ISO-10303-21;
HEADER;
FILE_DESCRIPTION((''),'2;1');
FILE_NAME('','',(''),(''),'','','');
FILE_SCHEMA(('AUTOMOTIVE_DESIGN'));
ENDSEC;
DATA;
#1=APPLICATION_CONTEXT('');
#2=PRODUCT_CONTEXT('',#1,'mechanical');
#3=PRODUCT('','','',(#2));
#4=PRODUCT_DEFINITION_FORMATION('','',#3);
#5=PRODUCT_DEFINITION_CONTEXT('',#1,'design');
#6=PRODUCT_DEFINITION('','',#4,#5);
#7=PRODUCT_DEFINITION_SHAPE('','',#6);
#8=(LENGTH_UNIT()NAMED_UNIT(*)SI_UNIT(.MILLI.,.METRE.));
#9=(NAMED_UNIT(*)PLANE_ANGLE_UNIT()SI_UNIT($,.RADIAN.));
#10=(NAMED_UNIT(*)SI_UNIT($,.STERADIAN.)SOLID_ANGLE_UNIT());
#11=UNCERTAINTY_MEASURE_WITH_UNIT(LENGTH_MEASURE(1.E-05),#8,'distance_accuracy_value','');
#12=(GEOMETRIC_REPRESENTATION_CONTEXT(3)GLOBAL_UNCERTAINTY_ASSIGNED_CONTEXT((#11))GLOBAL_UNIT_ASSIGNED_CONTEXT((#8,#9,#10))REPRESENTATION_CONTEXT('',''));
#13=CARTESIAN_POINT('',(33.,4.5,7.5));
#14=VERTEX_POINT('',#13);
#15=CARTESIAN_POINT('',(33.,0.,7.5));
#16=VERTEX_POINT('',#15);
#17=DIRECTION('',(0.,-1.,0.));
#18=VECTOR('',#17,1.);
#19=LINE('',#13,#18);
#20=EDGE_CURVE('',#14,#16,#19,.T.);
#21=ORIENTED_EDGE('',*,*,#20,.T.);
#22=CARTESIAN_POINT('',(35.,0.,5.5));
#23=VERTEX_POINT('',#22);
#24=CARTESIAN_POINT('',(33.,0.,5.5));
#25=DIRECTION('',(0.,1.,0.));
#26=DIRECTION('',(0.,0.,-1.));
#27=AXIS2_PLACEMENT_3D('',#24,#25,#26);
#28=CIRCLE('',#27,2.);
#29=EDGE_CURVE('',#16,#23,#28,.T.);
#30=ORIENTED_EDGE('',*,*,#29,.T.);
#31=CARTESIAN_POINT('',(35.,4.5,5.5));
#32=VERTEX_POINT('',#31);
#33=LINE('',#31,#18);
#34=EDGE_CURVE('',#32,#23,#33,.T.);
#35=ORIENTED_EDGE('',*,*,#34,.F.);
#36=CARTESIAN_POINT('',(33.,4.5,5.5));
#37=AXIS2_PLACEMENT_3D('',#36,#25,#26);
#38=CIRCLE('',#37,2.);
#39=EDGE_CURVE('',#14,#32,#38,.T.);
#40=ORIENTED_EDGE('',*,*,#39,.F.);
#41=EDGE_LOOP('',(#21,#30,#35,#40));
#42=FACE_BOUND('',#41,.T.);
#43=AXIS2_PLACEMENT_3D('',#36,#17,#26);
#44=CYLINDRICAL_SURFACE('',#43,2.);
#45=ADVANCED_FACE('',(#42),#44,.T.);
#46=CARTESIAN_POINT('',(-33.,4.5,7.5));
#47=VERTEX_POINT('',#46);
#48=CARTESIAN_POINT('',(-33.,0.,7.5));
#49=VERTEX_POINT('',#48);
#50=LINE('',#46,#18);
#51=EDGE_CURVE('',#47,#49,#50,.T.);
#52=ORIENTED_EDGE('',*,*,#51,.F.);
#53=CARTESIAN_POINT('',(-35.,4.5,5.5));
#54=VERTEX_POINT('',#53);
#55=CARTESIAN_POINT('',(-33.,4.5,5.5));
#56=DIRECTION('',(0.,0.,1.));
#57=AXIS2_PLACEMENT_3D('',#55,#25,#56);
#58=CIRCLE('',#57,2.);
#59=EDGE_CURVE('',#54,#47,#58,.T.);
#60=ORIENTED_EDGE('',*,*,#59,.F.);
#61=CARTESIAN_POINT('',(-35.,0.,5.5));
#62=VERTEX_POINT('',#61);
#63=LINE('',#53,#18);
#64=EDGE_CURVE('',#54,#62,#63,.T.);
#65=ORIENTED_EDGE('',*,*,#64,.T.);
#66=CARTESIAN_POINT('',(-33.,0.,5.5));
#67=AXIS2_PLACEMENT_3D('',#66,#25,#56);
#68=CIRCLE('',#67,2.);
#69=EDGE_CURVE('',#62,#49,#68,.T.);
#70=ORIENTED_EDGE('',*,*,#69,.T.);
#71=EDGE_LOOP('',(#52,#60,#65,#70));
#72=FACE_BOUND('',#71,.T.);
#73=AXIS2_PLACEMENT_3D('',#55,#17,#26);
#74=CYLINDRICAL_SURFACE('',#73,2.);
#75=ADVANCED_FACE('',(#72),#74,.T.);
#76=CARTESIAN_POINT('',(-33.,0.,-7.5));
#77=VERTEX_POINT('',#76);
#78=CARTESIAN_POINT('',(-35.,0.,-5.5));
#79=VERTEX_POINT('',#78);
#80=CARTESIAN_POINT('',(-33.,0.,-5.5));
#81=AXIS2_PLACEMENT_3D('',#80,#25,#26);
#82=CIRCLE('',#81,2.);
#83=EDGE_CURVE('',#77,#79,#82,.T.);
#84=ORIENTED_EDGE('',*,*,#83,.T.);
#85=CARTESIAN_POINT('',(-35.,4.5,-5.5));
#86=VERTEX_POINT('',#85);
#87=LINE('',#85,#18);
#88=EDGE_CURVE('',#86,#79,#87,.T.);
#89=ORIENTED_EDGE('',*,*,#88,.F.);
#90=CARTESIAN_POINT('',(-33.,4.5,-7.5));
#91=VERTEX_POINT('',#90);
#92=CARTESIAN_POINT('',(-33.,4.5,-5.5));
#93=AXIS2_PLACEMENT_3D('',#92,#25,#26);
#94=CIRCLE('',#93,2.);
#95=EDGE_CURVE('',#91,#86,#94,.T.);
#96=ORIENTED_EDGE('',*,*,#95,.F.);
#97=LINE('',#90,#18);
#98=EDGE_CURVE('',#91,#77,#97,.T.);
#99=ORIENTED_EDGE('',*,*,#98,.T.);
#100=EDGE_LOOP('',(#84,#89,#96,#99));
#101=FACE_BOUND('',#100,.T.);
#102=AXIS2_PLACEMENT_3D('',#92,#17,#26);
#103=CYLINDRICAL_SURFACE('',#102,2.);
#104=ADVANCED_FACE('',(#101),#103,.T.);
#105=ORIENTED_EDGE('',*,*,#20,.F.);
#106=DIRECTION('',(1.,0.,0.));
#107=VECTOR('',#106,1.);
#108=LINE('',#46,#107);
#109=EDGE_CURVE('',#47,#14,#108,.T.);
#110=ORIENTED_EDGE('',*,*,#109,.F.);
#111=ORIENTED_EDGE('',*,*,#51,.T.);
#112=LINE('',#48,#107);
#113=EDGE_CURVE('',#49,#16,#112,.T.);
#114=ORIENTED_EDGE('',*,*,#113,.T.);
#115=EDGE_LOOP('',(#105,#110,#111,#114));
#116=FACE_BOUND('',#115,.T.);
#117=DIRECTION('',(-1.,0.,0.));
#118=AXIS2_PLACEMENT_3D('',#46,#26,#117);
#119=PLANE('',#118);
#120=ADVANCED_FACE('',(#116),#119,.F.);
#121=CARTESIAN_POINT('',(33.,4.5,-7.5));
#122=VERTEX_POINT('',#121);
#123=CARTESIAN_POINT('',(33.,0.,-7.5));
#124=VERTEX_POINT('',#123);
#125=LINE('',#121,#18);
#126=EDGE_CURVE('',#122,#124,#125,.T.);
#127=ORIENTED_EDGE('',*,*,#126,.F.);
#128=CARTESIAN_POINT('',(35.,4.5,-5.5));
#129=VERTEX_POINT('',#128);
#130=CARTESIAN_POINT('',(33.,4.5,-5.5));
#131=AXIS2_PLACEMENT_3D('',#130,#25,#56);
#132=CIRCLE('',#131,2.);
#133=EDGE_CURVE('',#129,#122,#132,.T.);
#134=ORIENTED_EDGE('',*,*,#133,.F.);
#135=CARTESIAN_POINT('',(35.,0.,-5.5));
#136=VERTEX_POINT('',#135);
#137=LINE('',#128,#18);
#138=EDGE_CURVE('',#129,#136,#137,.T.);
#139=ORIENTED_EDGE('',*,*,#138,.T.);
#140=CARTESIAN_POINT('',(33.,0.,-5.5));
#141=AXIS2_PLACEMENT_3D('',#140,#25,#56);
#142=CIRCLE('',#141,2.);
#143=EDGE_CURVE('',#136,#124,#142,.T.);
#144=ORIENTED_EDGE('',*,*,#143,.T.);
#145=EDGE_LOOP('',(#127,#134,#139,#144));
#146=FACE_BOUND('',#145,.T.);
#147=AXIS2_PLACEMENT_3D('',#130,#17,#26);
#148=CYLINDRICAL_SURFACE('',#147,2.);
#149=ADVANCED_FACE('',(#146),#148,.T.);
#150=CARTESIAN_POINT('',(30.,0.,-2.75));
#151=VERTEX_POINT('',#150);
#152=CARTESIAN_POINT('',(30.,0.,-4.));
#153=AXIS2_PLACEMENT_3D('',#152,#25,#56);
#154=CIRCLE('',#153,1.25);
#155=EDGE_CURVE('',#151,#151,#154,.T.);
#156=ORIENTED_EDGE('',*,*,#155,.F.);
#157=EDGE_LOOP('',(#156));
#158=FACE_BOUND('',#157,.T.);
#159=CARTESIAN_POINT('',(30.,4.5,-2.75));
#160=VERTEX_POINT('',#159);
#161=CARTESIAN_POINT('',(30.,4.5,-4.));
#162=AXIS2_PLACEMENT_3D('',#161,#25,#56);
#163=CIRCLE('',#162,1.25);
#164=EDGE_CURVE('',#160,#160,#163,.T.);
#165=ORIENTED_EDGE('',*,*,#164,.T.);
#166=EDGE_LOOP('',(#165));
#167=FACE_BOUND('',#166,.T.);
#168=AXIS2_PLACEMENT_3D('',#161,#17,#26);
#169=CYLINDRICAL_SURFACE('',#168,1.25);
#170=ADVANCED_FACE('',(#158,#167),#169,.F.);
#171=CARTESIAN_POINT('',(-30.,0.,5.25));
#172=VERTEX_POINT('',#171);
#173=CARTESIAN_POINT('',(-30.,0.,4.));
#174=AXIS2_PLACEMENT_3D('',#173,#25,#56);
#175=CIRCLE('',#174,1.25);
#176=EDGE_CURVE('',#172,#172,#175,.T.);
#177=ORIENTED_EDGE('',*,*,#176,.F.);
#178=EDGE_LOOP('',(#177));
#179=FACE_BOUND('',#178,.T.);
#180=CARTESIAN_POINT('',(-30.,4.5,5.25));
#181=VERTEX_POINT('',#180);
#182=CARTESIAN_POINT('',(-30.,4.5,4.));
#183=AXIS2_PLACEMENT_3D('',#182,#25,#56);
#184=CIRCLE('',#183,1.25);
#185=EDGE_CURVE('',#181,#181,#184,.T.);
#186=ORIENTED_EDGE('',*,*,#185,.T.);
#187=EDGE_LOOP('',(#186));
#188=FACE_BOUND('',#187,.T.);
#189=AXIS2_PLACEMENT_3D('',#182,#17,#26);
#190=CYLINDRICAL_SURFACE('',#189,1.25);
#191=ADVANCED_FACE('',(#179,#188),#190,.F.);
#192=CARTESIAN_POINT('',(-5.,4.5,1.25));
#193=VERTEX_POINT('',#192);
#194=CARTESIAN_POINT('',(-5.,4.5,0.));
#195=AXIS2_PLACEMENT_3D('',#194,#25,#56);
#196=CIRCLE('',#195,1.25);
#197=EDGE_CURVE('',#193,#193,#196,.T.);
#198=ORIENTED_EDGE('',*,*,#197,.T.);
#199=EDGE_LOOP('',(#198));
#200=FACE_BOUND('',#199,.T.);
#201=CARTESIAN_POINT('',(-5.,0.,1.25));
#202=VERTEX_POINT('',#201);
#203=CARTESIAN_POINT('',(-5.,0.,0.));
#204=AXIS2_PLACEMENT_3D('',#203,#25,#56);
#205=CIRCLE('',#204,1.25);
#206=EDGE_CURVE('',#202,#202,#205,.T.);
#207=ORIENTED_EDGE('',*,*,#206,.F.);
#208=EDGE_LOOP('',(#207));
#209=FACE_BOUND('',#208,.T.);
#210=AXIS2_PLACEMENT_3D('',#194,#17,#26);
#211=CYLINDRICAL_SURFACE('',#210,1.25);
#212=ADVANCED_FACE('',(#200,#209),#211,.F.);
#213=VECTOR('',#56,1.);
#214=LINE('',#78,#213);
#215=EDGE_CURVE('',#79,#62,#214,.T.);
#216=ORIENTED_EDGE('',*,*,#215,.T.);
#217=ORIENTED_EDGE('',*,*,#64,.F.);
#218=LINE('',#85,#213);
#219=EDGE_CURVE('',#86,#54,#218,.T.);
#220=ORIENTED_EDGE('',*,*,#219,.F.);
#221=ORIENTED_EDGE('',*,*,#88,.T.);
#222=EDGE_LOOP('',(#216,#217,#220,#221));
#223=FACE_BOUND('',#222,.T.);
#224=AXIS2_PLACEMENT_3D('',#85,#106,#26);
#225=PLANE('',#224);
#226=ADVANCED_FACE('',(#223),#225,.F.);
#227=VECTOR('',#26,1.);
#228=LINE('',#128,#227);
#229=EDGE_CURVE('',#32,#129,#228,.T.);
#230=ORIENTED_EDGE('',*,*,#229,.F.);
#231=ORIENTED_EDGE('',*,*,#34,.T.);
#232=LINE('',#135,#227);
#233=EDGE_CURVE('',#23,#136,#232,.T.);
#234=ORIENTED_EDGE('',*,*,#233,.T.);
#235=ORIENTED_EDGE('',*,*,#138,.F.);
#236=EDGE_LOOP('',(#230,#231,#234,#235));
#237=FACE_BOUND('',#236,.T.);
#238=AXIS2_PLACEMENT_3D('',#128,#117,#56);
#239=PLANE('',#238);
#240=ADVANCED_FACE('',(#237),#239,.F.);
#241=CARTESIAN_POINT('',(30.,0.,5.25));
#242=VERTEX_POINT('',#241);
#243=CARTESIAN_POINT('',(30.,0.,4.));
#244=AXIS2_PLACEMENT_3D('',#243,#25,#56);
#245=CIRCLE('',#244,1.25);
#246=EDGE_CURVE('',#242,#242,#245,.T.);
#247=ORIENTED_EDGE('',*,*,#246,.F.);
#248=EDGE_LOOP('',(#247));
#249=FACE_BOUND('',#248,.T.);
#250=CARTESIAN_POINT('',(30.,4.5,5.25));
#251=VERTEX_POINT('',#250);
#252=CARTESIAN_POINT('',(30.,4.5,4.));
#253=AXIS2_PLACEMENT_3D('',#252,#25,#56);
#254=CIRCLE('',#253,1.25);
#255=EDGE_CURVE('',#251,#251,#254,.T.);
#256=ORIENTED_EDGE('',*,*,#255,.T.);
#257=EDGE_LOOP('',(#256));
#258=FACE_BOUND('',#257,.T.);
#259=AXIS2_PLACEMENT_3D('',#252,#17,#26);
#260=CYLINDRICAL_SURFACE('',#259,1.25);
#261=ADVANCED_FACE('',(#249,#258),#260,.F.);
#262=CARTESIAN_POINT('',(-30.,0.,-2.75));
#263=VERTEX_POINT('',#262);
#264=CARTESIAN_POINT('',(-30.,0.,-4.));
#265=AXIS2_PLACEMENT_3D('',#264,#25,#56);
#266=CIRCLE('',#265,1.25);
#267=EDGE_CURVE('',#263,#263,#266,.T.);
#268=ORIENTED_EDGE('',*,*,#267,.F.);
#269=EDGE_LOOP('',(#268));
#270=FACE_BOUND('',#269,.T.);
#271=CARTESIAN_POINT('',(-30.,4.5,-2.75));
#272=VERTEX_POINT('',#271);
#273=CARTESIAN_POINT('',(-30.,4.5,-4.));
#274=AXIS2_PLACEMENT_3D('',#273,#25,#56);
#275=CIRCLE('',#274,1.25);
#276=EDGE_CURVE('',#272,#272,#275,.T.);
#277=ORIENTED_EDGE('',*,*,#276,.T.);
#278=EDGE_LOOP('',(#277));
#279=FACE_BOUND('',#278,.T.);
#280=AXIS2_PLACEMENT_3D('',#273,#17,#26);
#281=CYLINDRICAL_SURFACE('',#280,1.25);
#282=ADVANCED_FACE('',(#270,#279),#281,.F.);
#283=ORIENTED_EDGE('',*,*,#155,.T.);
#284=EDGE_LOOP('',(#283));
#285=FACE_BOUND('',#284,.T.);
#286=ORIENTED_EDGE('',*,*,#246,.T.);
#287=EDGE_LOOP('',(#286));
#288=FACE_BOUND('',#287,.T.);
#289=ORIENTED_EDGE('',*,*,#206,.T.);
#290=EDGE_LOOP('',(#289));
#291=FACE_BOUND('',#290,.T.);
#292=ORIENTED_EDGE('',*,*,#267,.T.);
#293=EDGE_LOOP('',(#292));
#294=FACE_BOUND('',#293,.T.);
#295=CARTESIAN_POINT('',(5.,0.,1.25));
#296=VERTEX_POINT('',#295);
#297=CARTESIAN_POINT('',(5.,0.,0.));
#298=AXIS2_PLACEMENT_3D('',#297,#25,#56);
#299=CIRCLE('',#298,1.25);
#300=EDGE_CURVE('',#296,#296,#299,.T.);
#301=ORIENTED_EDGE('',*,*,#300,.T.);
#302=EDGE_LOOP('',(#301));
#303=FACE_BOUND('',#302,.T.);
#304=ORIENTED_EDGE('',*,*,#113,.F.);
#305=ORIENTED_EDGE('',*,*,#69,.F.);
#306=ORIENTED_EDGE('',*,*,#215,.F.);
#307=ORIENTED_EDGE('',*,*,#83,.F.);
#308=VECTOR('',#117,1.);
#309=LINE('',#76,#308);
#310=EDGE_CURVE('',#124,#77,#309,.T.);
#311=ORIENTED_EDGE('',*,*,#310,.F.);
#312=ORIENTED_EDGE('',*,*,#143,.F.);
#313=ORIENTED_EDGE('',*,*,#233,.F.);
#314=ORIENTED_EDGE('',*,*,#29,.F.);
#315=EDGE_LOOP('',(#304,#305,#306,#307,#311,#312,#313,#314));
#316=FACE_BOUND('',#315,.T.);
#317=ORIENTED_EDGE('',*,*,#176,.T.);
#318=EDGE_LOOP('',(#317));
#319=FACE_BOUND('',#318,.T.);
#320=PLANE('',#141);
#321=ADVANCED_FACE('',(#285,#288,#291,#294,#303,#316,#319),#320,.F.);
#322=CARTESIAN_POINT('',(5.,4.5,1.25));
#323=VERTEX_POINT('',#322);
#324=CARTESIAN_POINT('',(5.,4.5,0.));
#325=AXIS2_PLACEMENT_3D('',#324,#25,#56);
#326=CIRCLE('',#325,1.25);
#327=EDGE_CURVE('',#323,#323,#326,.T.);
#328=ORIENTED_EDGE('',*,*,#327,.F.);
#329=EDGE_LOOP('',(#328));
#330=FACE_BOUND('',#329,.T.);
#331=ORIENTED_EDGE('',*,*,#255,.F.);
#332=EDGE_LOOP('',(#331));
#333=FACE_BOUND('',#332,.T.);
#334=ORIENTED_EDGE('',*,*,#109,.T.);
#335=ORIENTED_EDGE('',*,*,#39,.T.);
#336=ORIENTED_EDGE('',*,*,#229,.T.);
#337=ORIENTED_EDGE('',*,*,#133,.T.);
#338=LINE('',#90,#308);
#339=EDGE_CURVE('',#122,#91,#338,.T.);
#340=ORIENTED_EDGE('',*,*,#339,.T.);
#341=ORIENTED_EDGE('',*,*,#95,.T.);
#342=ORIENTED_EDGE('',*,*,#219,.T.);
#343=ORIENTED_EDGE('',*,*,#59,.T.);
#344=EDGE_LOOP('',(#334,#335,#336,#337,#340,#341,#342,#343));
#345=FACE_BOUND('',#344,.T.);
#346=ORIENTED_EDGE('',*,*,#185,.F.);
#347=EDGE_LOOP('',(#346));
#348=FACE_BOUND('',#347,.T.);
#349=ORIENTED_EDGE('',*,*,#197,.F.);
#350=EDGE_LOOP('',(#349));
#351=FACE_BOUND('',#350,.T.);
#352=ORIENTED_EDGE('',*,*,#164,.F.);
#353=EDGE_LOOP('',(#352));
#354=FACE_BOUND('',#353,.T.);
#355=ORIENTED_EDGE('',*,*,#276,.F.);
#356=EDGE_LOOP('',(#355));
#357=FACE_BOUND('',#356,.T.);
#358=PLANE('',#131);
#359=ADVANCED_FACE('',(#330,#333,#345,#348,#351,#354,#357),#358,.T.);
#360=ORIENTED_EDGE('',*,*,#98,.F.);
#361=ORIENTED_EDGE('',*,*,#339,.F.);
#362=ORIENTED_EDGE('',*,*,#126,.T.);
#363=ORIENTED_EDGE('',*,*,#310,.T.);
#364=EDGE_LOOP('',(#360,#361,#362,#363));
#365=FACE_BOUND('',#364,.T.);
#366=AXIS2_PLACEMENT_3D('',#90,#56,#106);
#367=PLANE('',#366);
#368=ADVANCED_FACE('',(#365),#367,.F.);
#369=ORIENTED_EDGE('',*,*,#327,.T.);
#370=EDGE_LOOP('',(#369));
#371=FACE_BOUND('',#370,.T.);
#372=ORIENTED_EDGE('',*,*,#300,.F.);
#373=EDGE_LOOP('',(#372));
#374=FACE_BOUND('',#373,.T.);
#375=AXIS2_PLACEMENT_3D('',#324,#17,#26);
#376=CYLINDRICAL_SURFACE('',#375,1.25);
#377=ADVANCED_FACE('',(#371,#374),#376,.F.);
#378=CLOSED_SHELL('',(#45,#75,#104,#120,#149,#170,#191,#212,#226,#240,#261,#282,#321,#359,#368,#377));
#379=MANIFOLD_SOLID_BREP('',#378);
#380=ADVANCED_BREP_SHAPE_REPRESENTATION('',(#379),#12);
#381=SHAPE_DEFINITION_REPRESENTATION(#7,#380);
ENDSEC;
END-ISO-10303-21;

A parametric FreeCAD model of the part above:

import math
import FreeCAD as App
import Part
import Sketcher
from FreeCAD import Vector

doc = App.newDocument("Part")
params = doc.addObject("Spreadsheet::Sheet", "Params")
for row, (alias, value) in enumerate([
    ("sketch1_radius", "2 mm"),
    ("sketch1_diameter", "2.5 mm"),
    ("sketch1_width", "66 mm"),
    ("sketch1_height", "11 mm"),
    ("pad1_length", "4.5 mm"),
], start=1):
    params.set(f"A{row}", alias)
    params.set(f"B{row}", "=" + value)
    params.setAlias(f"B{row}", alias)

body = doc.addObject("PartDesign::Body", "Body")

# Sketch on XZ plane
sketch1 = body.newObject("Sketcher::SketchObject", "Sketch")
sketch1.AttachmentSupport = (doc.getObject("XZ_Plane"), [""])
sketch1.MapMode = "FlatFace"
sketch1.addGeometry(Part.LineSegment(Vector(33, -7.5, 0), Vector(-33, -7.5, 0)), False)
sketch1.addGeometry(Part.ArcOfCircle(Part.Circle(Vector(-33, -5.5, 0), Vector(0, 0, 1), 2), math.radians(-180), math.radians(-90)), False)
sketch1.addGeometry(Part.LineSegment(Vector(-35, -5.5, 0), Vector(-35, 5.5, 0)), False)
sketch1.addGeometry(Part.ArcOfCircle(Part.Circle(Vector(-33, 5.5, 0), Vector(0, 0, 1), 2), math.radians(90), math.radians(180)), False)
sketch1.addGeometry(Part.LineSegment(Vector(-33, 7.5, 0), Vector(33, 7.5, 0)), False)
sketch1.addGeometry(Part.ArcOfCircle(Part.Circle(Vector(33, 5.5, 0), Vector(0, 0, 1), 2), math.radians(0), math.radians(90)), False)
sketch1.addGeometry(Part.LineSegment(Vector(35, 5.5, 0), Vector(35, -5.5, 0)), False)
sketch1.addGeometry(Part.ArcOfCircle(Part.Circle(Vector(33, -5.5, 0), Vector(0, 0, 1), 2), math.radians(-90), math.radians(0)), False)
sketch1.addGeometry(Part.Circle(Vector(30, 4, 0), Vector(0, 0, 1), 1.2), False)
sketch1.addGeometry(Part.Circle(Vector(-30, 4, 0), Vector(0, 0, 1), 1.2), False)
sketch1.addGeometry(Part.Circle(Vector(5, 0, 0), Vector(0, 0, 1), 1.2), False)
sketch1.addGeometry(Part.Circle(Vector(30, -4, 0), Vector(0, 0, 1), 1.2), False)
sketch1.addGeometry(Part.Circle(Vector(-5, 0, 0), Vector(0, 0, 1), 1.2), False)
sketch1.addGeometry(Part.Circle(Vector(-30, -4, 0), Vector(0, 0, 1), 1.2), False)
sketch1.addConstraint(Sketcher.Constraint("Tangent", 0, 2, 1, 2))
sketch1.addConstraint(Sketcher.Constraint("Tangent", 1, 1, 2, 1))
sketch1.addConstraint(Sketcher.Constraint("Tangent", 2, 2, 3, 2))
sketch1.addConstraint(Sketcher.Constraint("Tangent", 3, 1, 4, 1))
sketch1.addConstraint(Sketcher.Constraint("Tangent", 4, 2, 5, 2))
sketch1.addConstraint(Sketcher.Constraint("Tangent", 5, 1, 6, 1))
sketch1.addConstraint(Sketcher.Constraint("Tangent", 6, 2, 7, 2))
sketch1.addConstraint(Sketcher.Constraint("Tangent", 7, 1, 0, 1))
sketch1.addConstraint(Sketcher.Constraint("Horizontal", 0))
sketch1.addConstraint(Sketcher.Constraint("Vertical", 2))
sketch1.addConstraint(Sketcher.Constraint("Horizontal", 4))
sketch1.addConstraint(Sketcher.Constraint("Vertical", 6))
sketch1.addConstraint(Sketcher.Constraint("Equal", 1, 3))
sketch1.addConstraint(Sketcher.Constraint("Equal", 3, 5))
sketch1.addConstraint(Sketcher.Constraint("Equal", 5, 7))
sketch1.addConstraint(Sketcher.Constraint("Equal", 8, 9))
sketch1.addConstraint(Sketcher.Constraint("Equal", 9, 10))
sketch1.addConstraint(Sketcher.Constraint("Equal", 10, 11))
sketch1.addConstraint(Sketcher.Constraint("Equal", 11, 12))
sketch1.addConstraint(Sketcher.Constraint("Equal", 12, 13))
sketch1.addConstraint(Sketcher.Constraint("Symmetric", 1, 3, 5, 3, -1, 1))
sketch1.addConstraint(Sketcher.Constraint("Symmetric", 9, 3, 11, 3, -1, 1))
sketch1.addConstraint(Sketcher.Constraint("Symmetric", 10, 3, 12, 3, -1, 1))
sketch1.addConstraint(Sketcher.Constraint("Symmetric", 8, 3, 13, 3, -1, 1))
sketch1.addConstraint(Sketcher.Constraint("Symmetric", 8, 3, 9, 3, -2))
sketch1.addConstraint(Sketcher.Constraint("PointOnObject", 10, 3, -1))
sketch1.addConstraint(Sketcher.Constraint("Radius", 1, 2.0))
sketch1.addConstraint(Sketcher.Constraint("Diameter", 8, 2.5))
sketch1.addConstraint(Sketcher.Constraint("DistanceX", 0, 2, 0, 1, 66.0))
sketch1.addConstraint(Sketcher.Constraint("DistanceY", 2, 1, 2, 2, 11.0))
sketch1.addConstraint(Sketcher.Constraint("DistanceX", -1, 1, 8, 3, 30.0))
sketch1.addConstraint(Sketcher.Constraint("DistanceY", -1, 1, 8, 3, 4.0))
sketch1.addConstraint(Sketcher.Constraint("DistanceX", -1, 1, 10, 3, 5.0))
sketch1.setExpression("Constraints[26]", "Params.sketch1_radius")
sketch1.setExpression("Constraints[27]", "Params.sketch1_diameter")
sketch1.setExpression("Constraints[28]", "Params.sketch1_width")
sketch1.setExpression("Constraints[29]", "Params.sketch1_height")
pad1 = body.newObject("PartDesign::Pad", "Pad")
pad1.Profile = sketch1
pad1.setExpression("Length", "Params.pad1_length")
pad1.Reversed = True

doc.recompute()
